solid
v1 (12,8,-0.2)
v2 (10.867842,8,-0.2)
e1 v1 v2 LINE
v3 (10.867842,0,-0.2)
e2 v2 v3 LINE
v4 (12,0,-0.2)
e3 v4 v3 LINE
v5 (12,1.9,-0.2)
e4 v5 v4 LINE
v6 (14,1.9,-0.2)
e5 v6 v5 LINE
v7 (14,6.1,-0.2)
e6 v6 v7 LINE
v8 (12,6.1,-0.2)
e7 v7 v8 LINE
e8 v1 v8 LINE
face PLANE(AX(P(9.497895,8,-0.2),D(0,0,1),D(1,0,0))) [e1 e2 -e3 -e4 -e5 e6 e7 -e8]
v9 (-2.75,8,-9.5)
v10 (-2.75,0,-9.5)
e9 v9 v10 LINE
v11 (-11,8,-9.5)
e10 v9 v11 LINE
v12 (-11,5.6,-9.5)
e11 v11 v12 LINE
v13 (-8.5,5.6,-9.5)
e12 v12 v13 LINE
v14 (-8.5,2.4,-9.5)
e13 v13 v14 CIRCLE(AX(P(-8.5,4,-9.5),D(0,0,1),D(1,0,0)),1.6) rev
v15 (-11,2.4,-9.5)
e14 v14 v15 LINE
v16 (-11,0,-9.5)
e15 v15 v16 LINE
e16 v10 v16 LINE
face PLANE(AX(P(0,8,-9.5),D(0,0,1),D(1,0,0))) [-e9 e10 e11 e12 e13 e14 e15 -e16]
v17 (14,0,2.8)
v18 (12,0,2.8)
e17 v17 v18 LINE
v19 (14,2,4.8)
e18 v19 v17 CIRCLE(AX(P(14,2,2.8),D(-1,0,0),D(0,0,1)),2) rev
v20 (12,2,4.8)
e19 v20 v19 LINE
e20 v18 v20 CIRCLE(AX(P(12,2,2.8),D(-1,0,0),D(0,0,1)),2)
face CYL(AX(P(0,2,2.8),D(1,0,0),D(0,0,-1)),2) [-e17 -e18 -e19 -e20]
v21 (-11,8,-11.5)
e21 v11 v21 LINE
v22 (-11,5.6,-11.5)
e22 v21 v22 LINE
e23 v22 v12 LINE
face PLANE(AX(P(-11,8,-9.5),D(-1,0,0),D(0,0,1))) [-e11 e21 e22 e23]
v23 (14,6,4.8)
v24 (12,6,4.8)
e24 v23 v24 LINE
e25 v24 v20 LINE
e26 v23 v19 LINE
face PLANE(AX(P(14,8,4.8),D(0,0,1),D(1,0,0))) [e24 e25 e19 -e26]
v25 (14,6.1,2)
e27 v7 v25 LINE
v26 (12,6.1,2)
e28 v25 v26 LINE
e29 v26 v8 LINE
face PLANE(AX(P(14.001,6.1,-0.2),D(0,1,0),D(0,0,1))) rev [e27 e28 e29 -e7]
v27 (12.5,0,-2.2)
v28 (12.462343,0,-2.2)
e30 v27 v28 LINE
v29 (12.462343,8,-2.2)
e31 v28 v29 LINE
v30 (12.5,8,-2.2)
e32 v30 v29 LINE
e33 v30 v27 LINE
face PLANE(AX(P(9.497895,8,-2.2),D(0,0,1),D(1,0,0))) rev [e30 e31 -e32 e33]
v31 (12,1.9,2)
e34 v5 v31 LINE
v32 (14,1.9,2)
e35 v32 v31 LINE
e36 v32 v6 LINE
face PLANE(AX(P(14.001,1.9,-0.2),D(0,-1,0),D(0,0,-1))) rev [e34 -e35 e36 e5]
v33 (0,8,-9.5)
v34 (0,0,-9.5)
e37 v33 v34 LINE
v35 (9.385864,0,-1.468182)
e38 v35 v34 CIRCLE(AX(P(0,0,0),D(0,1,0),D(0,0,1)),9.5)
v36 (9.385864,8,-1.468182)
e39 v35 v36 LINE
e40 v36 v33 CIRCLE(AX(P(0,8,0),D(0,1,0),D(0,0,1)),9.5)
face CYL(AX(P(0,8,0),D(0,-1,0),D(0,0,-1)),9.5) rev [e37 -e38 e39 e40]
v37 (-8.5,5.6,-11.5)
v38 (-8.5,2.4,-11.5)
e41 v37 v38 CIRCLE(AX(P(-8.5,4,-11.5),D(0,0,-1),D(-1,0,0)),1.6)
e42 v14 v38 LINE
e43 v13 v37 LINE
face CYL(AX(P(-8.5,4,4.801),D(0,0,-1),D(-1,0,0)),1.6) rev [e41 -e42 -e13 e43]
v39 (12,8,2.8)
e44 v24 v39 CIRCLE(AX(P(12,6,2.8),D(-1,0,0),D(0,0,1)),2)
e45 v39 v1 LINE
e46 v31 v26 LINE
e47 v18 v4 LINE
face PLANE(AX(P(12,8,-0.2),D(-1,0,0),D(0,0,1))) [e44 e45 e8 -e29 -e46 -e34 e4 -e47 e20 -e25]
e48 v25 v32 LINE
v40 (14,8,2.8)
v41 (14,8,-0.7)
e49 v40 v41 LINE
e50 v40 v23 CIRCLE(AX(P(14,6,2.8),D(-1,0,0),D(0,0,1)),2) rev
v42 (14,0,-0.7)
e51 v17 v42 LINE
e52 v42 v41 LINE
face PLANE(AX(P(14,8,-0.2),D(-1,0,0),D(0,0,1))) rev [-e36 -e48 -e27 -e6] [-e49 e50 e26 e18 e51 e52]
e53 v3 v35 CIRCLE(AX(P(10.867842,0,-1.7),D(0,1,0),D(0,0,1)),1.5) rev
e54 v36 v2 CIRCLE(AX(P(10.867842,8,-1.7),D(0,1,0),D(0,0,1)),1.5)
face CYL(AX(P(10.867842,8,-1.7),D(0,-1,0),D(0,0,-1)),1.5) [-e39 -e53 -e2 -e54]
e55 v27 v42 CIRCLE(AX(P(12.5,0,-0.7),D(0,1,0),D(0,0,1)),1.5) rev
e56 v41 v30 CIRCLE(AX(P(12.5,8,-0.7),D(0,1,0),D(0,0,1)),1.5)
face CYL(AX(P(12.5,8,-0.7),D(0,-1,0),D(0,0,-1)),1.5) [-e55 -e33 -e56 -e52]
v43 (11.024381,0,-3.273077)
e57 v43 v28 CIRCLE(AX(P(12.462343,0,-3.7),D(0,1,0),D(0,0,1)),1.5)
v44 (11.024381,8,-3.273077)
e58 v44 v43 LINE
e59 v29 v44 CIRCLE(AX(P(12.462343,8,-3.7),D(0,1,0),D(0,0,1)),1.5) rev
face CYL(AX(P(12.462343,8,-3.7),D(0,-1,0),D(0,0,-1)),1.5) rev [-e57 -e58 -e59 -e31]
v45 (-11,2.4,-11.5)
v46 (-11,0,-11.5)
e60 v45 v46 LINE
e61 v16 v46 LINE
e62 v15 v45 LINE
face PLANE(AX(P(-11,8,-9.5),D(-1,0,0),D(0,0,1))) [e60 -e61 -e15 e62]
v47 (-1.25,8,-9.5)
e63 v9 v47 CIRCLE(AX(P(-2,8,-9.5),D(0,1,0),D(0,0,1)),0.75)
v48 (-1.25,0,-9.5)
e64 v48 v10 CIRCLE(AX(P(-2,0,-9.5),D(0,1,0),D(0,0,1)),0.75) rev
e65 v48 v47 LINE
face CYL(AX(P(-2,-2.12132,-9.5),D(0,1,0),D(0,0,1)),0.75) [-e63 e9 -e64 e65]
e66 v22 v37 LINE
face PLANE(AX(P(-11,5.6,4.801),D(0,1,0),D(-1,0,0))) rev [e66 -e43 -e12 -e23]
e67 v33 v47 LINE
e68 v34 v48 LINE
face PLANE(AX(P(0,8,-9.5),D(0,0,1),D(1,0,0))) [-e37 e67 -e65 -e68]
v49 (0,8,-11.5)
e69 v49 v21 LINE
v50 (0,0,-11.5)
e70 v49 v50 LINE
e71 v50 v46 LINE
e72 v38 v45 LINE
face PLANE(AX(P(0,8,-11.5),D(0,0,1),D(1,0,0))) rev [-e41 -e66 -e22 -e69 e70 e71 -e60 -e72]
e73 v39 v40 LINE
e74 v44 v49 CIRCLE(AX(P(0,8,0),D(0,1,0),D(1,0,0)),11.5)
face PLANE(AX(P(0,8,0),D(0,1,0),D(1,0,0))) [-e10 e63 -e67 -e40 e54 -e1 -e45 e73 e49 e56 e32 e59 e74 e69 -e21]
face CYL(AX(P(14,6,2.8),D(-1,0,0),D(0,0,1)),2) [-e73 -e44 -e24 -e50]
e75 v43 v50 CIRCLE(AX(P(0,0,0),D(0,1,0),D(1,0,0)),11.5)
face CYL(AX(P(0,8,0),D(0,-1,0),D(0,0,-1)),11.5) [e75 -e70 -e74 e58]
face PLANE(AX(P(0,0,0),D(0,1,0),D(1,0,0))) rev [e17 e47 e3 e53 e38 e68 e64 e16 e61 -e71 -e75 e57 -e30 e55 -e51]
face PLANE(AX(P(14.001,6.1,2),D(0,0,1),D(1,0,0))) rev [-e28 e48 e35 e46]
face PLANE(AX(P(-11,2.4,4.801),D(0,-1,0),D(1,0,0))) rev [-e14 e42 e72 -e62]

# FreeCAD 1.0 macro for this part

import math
import FreeCAD as App
import Part
import Sketcher

V = App.Vector


def edges_at(feature, points):
    """Names of the edges that pass closest to the given points."""
    edges = feature.Shape.Edges
    near = lambda p: min(range(len(edges)), key=lambda i: edges[i].distToShape(Part.Vertex(*p))[0])
    return sorted({f"Edge{near(p) + 1}" for p in points})

doc = App.newDocument("Part")
body = doc.addObject("PartDesign::Body", "Body")

sketch1 = doc.addObject("Sketcher::SketchObject", "Sketch")
body.addObject(sketch1)
sketch1.AttachmentSupport = (doc.XZ_Plane, [""])
sketch1.MapMode = "FlatFace"
sketch1.addGeometry([
    Part.LineSegment(V(-11, -9.5, 0), V(0, -9.5, 0)),
    Part.ArcOfCircle(Part.Circle(V(0, 0, 0), V(0, 0, 1), 9.5), math.radians(-90), math.radians(-1)),
    Part.LineSegment(V(9.5, -0.2, 0), V(12, -0.2, 0)),
    Part.LineSegment(V(12, -0.2, 0), V(12, 4.8, 0)),
    Part.LineSegment(V(12, 4.8, 0), V(14, 4.8, 0)),
    Part.LineSegment(V(14, 4.8, 0), V(14, -2.2, 0)),
    Part.LineSegment(V(14, -2.2, 0), V(11.3, -2.2, 0)),
    Part.ArcOfCircle(Part.Circle(V(0, 0, 0), V(0, 0, 1), 11.5), math.radians(-90), math.radians(-11)),
    Part.LineSegment(V(0, -11.5, 0), V(-11, -11.5, 0)),
    Part.LineSegment(V(-11, -11.5, 0), V(-11, -9.5, 0)),
], False)
sketch1.addConstraint([
    Sketcher.Constraint("Tangent", 0, 2, 1, 1),
    Sketcher.Constraint("Coincident", 1, 2, 2, 1),
    Sketcher.Constraint("Coincident", 2, 2, 3, 1),
    Sketcher.Constraint("Coincident", 3, 2, 4, 1),
    Sketcher.Constraint("Coincident", 4, 2, 5, 1),
    Sketcher.Constraint("Coincident", 5, 2, 6, 1),
    Sketcher.Constraint("Coincident", 6, 2, 7, 2),
    Sketcher.Constraint("Tangent", 7, 1, 8, 1),
    Sketcher.Constraint("Coincident", 8, 2, 9, 1),
    Sketcher.Constraint("Coincident", 9, 2, 0, 1),
    Sketcher.Constraint("Horizontal", 0),
    Sketcher.Constraint("Horizontal", 2),
    Sketcher.Constraint("Vertical", 3),
    Sketcher.Constraint("Horizontal", 4),
    Sketcher.Constraint("Vertical", 5),
    Sketcher.Constraint("Horizontal", 6),
    Sketcher.Constraint("Horizontal", 8),
    Sketcher.Constraint("Vertical", 9),
    Sketcher.Constraint("Coincident", 1, 3, -1, 1),
    Sketcher.Constraint("Coincident", 7, 3, -1, 1),
    Sketcher.Constraint("Equal", 4, 9),
    Sketcher.Constraint("Radius", 1, 9.5),
    Sketcher.Constraint("Radius", 7, 11.5),
    Sketcher.Constraint("DistanceX", 0, 1, 0, 2, 11.0),
    Sketcher.Constraint("DistanceY", 3, 1, 3, 2, 5.0),
    Sketcher.Constraint("DistanceY", 5, 2, 5, 1, 7.0),
    Sketcher.Constraint("DistanceX", -1, 1, 2, 2, 12.0),
    Sketcher.Constraint("DistanceY", 1, 2, -1, 1, 0.2),
])
pad1 = doc.addObject("PartDesign::Pad", "Pad")
body.addObject(pad1)
pad1.Profile = sketch1
pad1.Length = 8
pad1.Reversed = True

sketch2 = doc.addObject("Sketcher::SketchObject", "Sketch001")
body.addObject(sketch2)
sketch2.AttachmentSupport = (doc.YZ_Plane, [""])
sketch2.MapMode = "FlatFace"
sketch2.AttachmentOffset = App.Placement(V(0, 0, 12), App.Rotation())
sketch2.addGeometry([
    Part.LineSegment(V(6.1, -0.2, 0), V(1.9, -0.2, 0)),
    Part.LineSegment(V(1.9, -0.2, 0), V(1.9, 2, 0)),
    Part.LineSegment(V(1.9, 2, 0), V(6.1, 2, 0)),
    Part.LineSegment(V(6.1, 2, 0), V(6.1, -0.2, 0)),
], False)
sketch2.addConstraint([
    Sketcher.Constraint("Coincident", 0, 2, 1, 1),
    Sketcher.Constraint("Coincident", 1, 2, 2, 1),
    Sketcher.Constraint("Coincident", 2, 2, 3, 1),
    Sketcher.Constraint("Coincident", 3, 2, 0, 1),
    Sketcher.Constraint("Horizontal", 0),
    Sketcher.Constraint("Vertical", 1),
    Sketcher.Constraint("Horizontal", 2),
    Sketcher.Constraint("Vertical", 3),
    Sketcher.Constraint("DistanceX", 0, 2, 0, 1, 4.2),
    Sketcher.Constraint("DistanceY", 1, 1, 1, 2, 2.2),
    Sketcher.Constraint("DistanceY", -1, 1, 1, 2, 2.0),
    Sketcher.Constraint("DistanceX", -1, 1, 0, 2, 1.9),
])
pocket1 = doc.addObject("PartDesign::Pocket", "Pocket")
body.addObject(pocket1)
pocket1.Profile = sketch2
pocket1.Type = "UpToFirst"
pocket1.Reversed = True

sketch3 = doc.addObject("Sketcher::SketchObject", "Sketch002")
body.addObject(sketch3)
sketch3.AttachmentSupport = (doc.XY_Plane, [""])
sketch3.MapMode = "FlatFace"
sketch3.AttachmentOffset = App.Placement(V(0, 0, -11.5), App.Rotation())
sketch3.addGeometry([
    Part.LineSegment(V(-8.5, 2.4, 0), V(-11, 2.4, 0)),
    Part.ArcOfCircle(Part.Circle(V(-11, 4, 0), V(0, 0, 1), 1.6), math.radians(90), math.radians(270)),
    Part.LineSegment(V(-11, 5.6, 0), V(-8.5, 5.6, 0)),
    Part.ArcOfCircle(Part.Circle(V(-8.5, 4, 0), V(0, 0, 1), 1.6), math.radians(-90), math.radians(90)),
], False)
sketch3.addConstraint([
    Sketcher.Constraint("Tangent", 0, 2, 1, 2),
    Sketcher.Constraint("Tangent", 1, 1, 2, 1),
    Sketcher.Constraint("Tangent", 2, 2, 3, 2),
    Sketcher.Constraint("Tangent", 3, 1, 0, 1),
    Sketcher.Constraint("Horizontal", 0),
    Sketcher.Constraint("Horizontal", 2),
    Sketcher.Constraint("Radius", 1, 1.6),
    Sketcher.Constraint("DistanceX", 0, 2, 0, 1, 2.5),
    Sketcher.Constraint("DistanceX", 1, 3, -1, 1, 11.0),
    Sketcher.Constraint("DistanceY", -1, 1, 1, 3, 4.0),
])
pocket2 = doc.addObject("PartDesign::Pocket", "Pocket001")
body.addObject(pocket2)
pocket2.Profile = sketch3
pocket2.Type = "UpToFirst"
pocket2.Reversed = True
doc.recompute()

fillet = doc.addObject("PartDesign::Fillet", "Fillet")
body.addObject(fillet)
fillet.Base = (pocket2, edges_at(pocket2, [(11.288, 4, -2.2), (14, 4, -2.2), (9.498, 4, -0.2)]))
fillet.Radius = 1.5
doc.recompute()

fillet2 = doc.addObject("PartDesign::Fillet", "Fillet001")
body.addObject(fillet2)
fillet2.Base = (fillet, edges_at(fillet, [(13, 8, 4.8), (13, 0, 4.8)]))
fillet2.Radius = 2

sketch4 = doc.addObject("Sketcher::SketchObject", "Sketch003")
body.addObject(sketch4)
sketch4.AttachmentSupport = (doc.XZ_Plane, [""])
sketch4.MapMode = "FlatFace"
sketch4.AttachmentOffset = App.Placement(V(0, 0, -8), App.Rotation())
sketch4.addGeometry(Part.Circle(V(-2, -9.5, 0), V(0, 0, 1), 0.8), False)
sketch4.addConstraint([
    Sketcher.Constraint("Diameter", 0, 1.5),
    Sketcher.Constraint("DistanceX", 0, 3, -1, 1, 2.0),
    Sketcher.Constraint("DistanceY", 0, 3, -1, 1, 9.5),
])
pad2 = doc.addObject("PartDesign::Pad", "Pad001")
body.addObject(pad2)
pad2.Profile = sketch4
pad2.Length = 8

doc.recompute()
